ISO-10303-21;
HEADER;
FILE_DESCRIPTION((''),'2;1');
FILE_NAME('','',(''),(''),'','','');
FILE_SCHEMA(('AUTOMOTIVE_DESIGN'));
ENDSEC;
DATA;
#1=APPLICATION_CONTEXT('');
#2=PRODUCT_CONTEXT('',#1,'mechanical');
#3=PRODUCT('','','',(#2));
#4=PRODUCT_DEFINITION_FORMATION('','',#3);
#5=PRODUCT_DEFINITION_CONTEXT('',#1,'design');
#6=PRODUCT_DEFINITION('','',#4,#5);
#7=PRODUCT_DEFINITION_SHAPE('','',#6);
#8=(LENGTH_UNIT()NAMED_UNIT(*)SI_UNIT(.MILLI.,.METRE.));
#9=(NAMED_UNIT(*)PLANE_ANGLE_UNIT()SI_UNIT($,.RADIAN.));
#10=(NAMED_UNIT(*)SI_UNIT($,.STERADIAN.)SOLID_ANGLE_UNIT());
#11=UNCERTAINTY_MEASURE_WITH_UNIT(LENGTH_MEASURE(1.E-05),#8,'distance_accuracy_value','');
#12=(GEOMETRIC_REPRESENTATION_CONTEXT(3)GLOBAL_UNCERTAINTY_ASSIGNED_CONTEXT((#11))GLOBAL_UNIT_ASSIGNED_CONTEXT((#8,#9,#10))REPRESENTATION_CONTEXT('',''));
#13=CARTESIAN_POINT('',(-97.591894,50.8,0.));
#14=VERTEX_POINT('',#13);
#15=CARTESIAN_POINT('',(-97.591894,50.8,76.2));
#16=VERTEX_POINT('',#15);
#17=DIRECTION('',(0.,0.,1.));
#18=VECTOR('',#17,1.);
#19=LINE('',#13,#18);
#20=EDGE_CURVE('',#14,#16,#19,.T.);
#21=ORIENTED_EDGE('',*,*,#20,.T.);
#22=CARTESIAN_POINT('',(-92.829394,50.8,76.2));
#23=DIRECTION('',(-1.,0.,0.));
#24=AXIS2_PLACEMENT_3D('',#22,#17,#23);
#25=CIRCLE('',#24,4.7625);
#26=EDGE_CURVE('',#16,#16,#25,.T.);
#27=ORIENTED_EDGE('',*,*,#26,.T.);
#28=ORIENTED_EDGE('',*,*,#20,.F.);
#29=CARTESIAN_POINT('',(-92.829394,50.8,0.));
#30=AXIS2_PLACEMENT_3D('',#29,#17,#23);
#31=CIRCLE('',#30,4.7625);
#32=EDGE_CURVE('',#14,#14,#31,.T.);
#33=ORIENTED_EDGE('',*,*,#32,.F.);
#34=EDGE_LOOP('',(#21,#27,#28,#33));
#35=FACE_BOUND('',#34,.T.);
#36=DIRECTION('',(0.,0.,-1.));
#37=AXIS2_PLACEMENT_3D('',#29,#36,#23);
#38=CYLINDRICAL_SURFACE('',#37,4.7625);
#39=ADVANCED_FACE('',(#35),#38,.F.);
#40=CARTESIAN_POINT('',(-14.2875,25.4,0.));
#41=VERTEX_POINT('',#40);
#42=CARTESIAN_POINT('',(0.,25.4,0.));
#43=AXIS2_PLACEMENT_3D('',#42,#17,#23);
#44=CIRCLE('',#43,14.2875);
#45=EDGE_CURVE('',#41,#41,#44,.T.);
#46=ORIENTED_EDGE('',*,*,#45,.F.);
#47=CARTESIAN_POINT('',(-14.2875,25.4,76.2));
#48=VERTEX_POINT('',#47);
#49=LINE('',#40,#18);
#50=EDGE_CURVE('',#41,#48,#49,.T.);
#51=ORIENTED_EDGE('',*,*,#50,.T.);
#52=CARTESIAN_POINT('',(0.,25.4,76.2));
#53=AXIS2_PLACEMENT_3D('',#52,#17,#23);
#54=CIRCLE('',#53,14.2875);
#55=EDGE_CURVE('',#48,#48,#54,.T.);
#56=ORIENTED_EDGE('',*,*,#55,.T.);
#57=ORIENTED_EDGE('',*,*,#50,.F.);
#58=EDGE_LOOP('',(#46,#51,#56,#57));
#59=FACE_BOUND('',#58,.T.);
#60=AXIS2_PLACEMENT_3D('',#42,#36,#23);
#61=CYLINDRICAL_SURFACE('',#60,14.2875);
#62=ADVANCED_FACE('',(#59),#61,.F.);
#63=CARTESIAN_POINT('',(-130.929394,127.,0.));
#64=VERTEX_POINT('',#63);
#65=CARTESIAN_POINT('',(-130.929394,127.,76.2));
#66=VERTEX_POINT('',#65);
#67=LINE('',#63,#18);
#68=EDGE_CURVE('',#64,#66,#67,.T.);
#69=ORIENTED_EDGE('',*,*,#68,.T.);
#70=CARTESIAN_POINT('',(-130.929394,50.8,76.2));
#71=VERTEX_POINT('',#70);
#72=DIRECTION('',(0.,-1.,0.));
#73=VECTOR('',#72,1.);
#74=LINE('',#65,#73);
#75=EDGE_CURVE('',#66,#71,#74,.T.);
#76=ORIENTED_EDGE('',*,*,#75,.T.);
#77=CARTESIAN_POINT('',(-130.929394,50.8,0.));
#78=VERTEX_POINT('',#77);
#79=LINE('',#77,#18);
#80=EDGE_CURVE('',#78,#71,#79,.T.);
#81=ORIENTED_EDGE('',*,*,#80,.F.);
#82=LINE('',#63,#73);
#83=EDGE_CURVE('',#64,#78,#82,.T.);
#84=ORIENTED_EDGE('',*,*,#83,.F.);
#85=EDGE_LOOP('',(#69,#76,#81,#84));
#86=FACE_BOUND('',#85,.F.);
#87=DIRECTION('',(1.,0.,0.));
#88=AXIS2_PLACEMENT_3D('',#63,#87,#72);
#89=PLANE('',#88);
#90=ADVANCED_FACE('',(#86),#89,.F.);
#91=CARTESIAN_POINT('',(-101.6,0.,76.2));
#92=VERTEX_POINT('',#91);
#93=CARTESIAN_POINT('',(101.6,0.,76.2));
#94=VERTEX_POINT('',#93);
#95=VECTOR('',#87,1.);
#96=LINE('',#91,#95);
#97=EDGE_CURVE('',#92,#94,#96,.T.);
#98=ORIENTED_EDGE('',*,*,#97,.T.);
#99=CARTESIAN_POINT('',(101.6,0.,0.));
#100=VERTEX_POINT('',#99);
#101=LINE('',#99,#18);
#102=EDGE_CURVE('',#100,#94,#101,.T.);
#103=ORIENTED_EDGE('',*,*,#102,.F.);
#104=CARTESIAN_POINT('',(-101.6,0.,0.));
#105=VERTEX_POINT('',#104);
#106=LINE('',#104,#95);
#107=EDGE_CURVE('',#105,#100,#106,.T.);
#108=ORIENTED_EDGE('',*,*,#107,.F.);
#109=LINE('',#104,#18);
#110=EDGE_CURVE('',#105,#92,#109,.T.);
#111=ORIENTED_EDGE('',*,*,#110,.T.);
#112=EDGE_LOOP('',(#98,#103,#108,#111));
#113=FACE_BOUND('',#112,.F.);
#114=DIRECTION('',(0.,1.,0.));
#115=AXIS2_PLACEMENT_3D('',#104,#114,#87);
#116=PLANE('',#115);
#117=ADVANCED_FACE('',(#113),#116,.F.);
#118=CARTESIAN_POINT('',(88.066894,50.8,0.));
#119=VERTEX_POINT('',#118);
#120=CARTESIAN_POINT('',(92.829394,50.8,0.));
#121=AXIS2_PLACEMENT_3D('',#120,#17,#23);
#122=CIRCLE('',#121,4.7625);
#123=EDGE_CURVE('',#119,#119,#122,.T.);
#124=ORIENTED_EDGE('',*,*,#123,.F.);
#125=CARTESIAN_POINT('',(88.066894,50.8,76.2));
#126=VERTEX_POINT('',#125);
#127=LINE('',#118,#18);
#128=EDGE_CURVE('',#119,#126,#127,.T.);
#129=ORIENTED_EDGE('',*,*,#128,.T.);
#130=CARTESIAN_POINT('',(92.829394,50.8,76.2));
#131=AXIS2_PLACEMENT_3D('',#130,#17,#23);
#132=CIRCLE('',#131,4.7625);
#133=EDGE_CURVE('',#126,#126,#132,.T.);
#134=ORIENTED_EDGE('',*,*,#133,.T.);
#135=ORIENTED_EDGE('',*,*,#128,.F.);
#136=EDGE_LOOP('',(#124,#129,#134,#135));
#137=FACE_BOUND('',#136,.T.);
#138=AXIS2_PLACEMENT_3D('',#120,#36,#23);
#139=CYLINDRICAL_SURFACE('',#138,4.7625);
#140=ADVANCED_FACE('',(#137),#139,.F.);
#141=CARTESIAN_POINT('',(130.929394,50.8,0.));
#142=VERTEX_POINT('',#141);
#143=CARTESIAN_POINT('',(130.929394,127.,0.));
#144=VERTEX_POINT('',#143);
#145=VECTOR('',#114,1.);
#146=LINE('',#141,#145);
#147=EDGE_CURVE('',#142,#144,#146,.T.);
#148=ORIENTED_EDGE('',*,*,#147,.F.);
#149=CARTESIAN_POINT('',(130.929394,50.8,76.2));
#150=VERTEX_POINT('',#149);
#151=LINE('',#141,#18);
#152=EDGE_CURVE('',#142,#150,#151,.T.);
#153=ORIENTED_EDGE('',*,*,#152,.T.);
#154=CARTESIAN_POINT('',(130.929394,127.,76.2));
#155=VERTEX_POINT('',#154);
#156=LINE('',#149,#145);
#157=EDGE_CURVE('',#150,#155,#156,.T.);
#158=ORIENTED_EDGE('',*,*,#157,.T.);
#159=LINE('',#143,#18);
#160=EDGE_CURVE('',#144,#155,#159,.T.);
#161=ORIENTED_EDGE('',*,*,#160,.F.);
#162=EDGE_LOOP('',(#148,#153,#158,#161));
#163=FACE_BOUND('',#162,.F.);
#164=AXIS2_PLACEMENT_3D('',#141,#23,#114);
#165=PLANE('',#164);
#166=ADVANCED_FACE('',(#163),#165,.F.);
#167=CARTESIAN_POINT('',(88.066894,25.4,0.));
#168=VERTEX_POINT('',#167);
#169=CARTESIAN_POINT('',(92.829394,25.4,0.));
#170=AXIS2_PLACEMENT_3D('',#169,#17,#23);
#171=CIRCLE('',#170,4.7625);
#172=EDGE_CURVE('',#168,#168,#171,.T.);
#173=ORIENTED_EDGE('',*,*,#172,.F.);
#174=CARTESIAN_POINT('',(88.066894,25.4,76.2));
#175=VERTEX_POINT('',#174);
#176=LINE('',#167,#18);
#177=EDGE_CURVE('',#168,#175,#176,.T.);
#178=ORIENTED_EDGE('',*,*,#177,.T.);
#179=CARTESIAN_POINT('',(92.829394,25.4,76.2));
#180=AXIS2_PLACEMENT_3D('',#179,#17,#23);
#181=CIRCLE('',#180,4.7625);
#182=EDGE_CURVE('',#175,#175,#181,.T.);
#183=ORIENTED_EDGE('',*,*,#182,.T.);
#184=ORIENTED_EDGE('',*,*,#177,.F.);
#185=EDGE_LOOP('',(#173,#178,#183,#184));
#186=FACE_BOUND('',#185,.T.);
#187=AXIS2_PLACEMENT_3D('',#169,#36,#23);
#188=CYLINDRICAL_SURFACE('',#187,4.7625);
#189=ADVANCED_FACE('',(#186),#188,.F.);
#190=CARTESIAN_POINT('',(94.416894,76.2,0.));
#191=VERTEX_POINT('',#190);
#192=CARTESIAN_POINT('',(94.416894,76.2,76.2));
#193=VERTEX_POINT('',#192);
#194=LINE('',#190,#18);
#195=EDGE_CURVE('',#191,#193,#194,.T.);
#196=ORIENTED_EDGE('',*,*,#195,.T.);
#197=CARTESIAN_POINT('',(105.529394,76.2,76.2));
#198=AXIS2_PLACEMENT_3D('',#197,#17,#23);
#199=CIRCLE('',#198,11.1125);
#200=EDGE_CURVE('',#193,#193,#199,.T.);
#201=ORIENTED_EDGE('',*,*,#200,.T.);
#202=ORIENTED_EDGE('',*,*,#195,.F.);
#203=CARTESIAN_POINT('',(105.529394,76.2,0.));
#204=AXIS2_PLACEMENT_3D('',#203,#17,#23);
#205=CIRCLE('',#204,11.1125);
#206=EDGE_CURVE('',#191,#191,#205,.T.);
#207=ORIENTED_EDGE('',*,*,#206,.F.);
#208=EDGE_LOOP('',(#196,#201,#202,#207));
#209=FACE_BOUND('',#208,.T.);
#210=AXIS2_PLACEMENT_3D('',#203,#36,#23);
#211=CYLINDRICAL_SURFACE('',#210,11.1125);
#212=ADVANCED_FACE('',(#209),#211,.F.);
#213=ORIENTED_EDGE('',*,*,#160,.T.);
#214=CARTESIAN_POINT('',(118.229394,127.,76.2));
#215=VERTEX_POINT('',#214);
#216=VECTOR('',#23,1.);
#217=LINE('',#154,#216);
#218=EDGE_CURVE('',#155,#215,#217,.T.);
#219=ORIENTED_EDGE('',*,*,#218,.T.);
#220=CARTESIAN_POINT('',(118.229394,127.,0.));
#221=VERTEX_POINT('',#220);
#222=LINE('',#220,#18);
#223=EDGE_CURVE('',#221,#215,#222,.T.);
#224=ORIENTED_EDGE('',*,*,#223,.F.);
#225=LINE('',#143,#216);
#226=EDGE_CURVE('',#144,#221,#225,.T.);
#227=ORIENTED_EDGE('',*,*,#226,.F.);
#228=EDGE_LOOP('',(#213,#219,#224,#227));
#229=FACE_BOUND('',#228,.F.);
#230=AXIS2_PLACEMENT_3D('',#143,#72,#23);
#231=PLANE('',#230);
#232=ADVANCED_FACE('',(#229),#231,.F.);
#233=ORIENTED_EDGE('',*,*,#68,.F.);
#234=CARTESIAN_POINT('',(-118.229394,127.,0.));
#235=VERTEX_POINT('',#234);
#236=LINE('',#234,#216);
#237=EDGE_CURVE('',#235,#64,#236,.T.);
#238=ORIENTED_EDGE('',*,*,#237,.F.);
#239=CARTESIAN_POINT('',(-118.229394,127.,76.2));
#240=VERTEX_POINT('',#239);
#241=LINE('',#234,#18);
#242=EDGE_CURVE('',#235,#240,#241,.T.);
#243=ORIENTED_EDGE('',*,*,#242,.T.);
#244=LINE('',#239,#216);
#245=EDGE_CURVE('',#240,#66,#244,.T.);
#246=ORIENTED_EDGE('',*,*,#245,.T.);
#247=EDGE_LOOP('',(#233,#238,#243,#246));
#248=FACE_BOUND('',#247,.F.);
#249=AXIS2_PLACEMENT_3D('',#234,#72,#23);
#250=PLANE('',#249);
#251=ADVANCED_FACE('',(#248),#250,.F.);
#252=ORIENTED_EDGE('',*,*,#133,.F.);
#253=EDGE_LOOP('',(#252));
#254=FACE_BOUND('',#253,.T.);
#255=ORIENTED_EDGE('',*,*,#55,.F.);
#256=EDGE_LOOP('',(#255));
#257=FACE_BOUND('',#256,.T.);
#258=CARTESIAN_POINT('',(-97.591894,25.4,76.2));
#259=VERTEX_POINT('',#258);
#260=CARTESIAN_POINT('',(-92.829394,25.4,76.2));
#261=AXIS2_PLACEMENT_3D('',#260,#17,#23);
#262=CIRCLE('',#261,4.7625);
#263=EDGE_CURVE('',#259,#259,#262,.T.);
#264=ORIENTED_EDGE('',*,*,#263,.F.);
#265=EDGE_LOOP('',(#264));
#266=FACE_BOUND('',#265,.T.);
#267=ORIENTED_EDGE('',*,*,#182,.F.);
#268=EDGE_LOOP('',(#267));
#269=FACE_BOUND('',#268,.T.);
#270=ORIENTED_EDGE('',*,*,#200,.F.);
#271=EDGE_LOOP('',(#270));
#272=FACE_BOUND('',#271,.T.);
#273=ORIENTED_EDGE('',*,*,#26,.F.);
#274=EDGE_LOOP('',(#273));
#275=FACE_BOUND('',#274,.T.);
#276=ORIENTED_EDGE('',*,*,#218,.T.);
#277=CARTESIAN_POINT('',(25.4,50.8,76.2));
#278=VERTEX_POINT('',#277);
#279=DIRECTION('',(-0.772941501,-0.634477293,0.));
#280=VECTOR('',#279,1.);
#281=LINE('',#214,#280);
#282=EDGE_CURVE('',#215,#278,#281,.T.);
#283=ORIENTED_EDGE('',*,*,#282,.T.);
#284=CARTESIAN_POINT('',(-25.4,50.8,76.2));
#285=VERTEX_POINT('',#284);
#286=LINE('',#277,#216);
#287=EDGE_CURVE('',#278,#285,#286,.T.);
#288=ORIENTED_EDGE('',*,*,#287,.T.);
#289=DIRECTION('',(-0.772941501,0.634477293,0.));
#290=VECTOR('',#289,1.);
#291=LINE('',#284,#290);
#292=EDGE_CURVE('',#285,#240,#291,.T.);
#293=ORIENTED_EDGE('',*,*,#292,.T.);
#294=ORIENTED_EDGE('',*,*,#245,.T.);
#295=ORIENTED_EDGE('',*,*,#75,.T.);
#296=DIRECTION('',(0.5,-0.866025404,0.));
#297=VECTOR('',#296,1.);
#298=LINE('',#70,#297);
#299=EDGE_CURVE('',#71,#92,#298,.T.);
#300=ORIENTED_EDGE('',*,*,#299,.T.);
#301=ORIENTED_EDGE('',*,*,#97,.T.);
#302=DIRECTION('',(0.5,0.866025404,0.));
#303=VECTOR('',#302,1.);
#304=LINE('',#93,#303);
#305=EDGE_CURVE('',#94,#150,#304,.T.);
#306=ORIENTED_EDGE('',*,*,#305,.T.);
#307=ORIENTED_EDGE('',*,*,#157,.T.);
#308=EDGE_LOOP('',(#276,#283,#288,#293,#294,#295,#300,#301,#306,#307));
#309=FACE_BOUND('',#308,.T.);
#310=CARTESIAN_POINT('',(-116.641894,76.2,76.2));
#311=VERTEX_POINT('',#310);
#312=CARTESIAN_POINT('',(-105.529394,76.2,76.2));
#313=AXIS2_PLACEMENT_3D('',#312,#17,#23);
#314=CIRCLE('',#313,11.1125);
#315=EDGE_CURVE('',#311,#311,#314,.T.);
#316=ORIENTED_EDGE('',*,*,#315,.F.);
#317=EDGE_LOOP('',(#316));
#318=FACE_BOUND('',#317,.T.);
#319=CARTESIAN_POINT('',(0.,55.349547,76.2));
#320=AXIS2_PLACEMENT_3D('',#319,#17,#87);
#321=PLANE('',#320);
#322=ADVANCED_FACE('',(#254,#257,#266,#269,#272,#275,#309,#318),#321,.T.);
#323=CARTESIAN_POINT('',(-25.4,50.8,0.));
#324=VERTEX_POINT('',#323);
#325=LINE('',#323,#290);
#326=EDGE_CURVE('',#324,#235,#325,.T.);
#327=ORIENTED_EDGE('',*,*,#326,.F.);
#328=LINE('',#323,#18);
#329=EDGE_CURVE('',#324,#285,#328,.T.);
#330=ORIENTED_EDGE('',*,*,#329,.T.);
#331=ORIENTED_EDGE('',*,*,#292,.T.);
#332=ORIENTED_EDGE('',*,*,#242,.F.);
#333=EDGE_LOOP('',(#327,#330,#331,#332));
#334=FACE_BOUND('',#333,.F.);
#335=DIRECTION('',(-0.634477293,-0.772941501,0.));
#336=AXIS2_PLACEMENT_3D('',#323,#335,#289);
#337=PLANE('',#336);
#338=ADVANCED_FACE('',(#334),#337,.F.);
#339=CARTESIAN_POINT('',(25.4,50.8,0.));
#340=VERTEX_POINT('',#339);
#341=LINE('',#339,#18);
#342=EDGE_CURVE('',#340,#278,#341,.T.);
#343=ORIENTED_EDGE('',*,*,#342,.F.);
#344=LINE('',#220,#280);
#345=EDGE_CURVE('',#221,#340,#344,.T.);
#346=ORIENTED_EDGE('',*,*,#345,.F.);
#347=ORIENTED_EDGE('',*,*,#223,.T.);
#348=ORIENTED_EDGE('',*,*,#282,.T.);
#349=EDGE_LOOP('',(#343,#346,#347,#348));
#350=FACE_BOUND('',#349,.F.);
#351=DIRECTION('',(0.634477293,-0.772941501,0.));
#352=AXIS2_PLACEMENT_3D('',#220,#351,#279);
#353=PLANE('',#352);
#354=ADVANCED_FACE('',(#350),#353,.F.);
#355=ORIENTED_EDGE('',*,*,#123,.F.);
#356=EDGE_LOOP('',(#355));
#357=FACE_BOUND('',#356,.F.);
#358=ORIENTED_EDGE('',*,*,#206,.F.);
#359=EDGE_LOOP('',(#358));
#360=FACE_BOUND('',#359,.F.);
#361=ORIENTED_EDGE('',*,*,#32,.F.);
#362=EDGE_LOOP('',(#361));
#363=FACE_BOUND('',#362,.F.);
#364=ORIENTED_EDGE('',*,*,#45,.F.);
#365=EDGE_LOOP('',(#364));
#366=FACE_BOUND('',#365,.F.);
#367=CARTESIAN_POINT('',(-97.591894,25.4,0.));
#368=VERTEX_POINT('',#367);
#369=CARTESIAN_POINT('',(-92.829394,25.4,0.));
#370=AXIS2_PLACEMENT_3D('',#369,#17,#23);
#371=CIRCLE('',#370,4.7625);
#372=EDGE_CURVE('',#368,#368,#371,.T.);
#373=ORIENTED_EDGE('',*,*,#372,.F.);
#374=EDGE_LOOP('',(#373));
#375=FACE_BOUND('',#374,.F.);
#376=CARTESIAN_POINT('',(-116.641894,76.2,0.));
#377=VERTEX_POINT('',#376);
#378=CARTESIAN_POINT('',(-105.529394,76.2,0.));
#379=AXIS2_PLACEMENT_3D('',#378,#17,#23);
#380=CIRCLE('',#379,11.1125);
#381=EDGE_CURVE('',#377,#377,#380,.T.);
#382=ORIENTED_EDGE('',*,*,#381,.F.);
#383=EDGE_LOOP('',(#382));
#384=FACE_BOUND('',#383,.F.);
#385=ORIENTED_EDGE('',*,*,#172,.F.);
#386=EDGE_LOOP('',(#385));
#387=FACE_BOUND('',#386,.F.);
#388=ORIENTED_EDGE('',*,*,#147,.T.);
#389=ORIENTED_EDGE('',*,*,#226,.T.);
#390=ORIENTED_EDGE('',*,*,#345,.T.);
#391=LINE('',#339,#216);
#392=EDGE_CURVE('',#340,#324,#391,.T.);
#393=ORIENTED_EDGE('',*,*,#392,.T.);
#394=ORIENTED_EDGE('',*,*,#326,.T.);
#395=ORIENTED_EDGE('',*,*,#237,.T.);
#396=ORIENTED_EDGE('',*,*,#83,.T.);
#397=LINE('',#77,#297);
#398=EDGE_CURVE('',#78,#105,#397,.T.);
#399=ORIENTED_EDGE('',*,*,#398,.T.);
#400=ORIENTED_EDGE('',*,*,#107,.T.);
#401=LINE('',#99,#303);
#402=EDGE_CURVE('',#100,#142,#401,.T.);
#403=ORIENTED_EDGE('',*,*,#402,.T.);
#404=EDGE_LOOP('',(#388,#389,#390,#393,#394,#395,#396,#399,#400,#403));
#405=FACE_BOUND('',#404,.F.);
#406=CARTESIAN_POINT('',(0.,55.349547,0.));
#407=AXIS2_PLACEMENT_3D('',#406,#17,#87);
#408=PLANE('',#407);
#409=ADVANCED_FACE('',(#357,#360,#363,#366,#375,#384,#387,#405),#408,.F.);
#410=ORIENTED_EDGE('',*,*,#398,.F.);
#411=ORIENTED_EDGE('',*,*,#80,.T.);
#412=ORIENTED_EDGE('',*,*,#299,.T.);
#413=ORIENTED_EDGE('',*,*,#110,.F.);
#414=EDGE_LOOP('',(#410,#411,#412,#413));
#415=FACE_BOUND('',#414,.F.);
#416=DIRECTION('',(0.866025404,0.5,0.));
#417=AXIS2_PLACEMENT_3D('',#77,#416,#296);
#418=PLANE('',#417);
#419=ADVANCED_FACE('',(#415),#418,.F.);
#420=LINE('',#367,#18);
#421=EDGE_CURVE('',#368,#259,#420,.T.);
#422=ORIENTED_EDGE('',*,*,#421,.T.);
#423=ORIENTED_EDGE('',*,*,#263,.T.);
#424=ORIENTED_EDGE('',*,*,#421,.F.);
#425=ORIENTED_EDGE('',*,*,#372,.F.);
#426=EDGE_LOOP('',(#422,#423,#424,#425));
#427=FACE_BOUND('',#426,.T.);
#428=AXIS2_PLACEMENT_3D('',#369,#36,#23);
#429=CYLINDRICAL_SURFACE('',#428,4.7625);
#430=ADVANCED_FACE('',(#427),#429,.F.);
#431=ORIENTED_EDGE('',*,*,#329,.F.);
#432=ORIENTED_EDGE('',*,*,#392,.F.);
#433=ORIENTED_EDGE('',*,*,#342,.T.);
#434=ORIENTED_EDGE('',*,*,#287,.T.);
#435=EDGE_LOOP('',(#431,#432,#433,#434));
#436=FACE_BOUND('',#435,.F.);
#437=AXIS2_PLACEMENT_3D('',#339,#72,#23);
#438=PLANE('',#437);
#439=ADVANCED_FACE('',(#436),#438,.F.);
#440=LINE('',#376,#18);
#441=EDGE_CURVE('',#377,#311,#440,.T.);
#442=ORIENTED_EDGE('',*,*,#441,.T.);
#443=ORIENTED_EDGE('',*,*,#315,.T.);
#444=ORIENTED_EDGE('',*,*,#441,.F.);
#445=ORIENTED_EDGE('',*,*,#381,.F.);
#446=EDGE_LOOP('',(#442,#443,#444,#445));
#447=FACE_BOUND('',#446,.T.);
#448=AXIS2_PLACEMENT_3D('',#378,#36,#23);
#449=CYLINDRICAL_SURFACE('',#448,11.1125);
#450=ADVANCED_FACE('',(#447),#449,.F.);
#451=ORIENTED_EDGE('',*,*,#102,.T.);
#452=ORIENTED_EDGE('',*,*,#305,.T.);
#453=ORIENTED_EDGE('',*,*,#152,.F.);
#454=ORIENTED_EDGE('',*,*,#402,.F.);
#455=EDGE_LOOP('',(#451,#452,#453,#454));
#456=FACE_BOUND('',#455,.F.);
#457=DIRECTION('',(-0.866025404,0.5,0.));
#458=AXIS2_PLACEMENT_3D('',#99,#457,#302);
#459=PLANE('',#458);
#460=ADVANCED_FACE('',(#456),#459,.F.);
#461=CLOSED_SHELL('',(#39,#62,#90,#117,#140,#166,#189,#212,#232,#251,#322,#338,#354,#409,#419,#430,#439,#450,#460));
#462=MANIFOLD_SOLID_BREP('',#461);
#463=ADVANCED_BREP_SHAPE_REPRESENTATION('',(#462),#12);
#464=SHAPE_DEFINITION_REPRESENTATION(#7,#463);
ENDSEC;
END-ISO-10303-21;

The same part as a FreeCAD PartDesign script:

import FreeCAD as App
import Part
import Sketcher

V = App.Vector
Q = App.Units.Quantity


def add_polygon(sketch, points):
    """Adds a closed chain of lines whose ends are joined by coincident constraints."""
    first, n = sketch.GeometryCount, len(points)
    for a, b in zip(points, points[1:] + points[:1]):
        sketch.addGeometry(Part.LineSegment(App.Vector(*a, 0), App.Vector(*b, 0)), False)
    for i in range(n):
        sketch.addConstraint(Sketcher.Constraint("Coincident", first + i, 2, first + (i + 1) % n, 1))

doc = App.newDocument("Part")
body = doc.addObject("PartDesign::Body", "Body")

sketch1 = body.newObject("Sketcher::SketchObject", "Sketch")
sketch1.AttachmentSupport = (doc.getObject("XY_Plane"), [""])
sketch1.MapMode = "FlatFace"
add_polygon(sketch1, [(-101.6, 0), (101.6, 0), (130.929394, 50.8), (130.929394, 127), (118.229394, 127), (25.4, 50.8), (-25.4, 50.8), (-118.229394, 127), (-130.929394, 127), (-130.929394, 50.8)])
sketch1.addGeometry(Part.Circle(V(-92.829394, 25.4, 0), V(0, 0, 1), 4.7625), False)
sketch1.addGeometry(Part.Circle(V(0, 25.4, 0), V(0, 0, 1), 14.2875), False)
sketch1.addGeometry(Part.Circle(V(92.829394, 25.4, 0), V(0, 0, 1), 4.7625), False)
sketch1.addGeometry(Part.Circle(V(-92.829394, 50.8, 0), V(0, 0, 1), 4.7625), False)
sketch1.addGeometry(Part.Circle(V(-105.529394, 76.2, 0), V(0, 0, 1), 11.1125), False)
sketch1.addGeometry(Part.Circle(V(92.829394, 50.8, 0), V(0, 0, 1), 4.7625), False)
sketch1.addGeometry(Part.Circle(V(105.529394, 76.2, 0), V(0, 0, 1), 11.1125), False)
sketch1.addConstraint([
    Sketcher.Constraint("Horizontal", 0),
    Sketcher.Constraint("Vertical", 2),
    Sketcher.Constraint("Horizontal", 3),
    Sketcher.Constraint("Horizontal", 5),
    Sketcher.Constraint("Horizontal", 7),
    Sketcher.Constraint("Vertical", 8),
    Sketcher.Constraint("Equal", 10, 12),
    Sketcher.Constraint("Equal", 12, 13),
    Sketcher.Constraint("Equal", 13, 15),
    Sketcher.Constraint("Equal", 14, 16),
    Sketcher.Constraint("Symmetric", 0, 2, 9, 2, -1, 1),
    Sketcher.Constraint("Symmetric", 10, 3, 12, 3, -2),
    Sketcher.Constraint("Symmetric", 13, 3, 15, 3, -2),
    Sketcher.Constraint("Symmetric", 14, 3, 16, 3, -2),
    Sketcher.Constraint("Symmetric", 3, 2, 6, 2, -2),
    Sketcher.Constraint("Symmetric", 1, 2, 8, 2, -2),
    Sketcher.Constraint("PointOnObject", 11, 3, -2),
    Sketcher.Constraint("Horizontal", 10, 3, 11, 3),
    Sketcher.Constraint("Horizontal", 15, 3, 1, 2),
    Sketcher.Constraint("Horizontal", 1, 2, 4, 2),
    Sketcher.Constraint("Vertical", 10, 3, 13, 3),
    Sketcher.Constraint("Equal", 4, 6),
    Sketcher.Constraint("DistanceX", 0, 1, 0, 2, Q("8 in")),
    Sketcher.Constraint("DistanceX", 5, 2, 5, 1, Q("2 in")),
    Sketcher.Constraint("DistanceY", 2, 1, 2, 2, Q("3 in")),
    Sketcher.Constraint("Diameter", 10, Q("0.375 in")),
    Sketcher.Constraint("Diameter", 11, Q("1.125 in")),
    Sketcher.Constraint("Diameter", 14, Q("0.875 in")),
    Sketcher.Constraint("DistanceX", 3, 2, 3, 1, Q("0.5 in")),
    Sketcher.Constraint("DistanceY", -1, 1, 10, 3, Q("1 in")),
    Sketcher.Constraint("DistanceY", -1, 1, 13, 3, Q("2 in")),
    Sketcher.Constraint("DistanceY", -1, 1, 14, 3, Q("3 in")),
    Sketcher.Constraint("Angle", 1, Q("60 deg")),
    Sketcher.Constraint("DistanceX", 16, 3, 1, 2, Q("1 in")),
    Sketcher.Constraint("DistanceX", 15, 3, 3, 2, Q("1 in")),
])
pad1 = body.newObject("PartDesign::Pad", "Pad")
pad1.Profile = sketch1
pad1.Length = Q("3 in")

doc.recompute()
